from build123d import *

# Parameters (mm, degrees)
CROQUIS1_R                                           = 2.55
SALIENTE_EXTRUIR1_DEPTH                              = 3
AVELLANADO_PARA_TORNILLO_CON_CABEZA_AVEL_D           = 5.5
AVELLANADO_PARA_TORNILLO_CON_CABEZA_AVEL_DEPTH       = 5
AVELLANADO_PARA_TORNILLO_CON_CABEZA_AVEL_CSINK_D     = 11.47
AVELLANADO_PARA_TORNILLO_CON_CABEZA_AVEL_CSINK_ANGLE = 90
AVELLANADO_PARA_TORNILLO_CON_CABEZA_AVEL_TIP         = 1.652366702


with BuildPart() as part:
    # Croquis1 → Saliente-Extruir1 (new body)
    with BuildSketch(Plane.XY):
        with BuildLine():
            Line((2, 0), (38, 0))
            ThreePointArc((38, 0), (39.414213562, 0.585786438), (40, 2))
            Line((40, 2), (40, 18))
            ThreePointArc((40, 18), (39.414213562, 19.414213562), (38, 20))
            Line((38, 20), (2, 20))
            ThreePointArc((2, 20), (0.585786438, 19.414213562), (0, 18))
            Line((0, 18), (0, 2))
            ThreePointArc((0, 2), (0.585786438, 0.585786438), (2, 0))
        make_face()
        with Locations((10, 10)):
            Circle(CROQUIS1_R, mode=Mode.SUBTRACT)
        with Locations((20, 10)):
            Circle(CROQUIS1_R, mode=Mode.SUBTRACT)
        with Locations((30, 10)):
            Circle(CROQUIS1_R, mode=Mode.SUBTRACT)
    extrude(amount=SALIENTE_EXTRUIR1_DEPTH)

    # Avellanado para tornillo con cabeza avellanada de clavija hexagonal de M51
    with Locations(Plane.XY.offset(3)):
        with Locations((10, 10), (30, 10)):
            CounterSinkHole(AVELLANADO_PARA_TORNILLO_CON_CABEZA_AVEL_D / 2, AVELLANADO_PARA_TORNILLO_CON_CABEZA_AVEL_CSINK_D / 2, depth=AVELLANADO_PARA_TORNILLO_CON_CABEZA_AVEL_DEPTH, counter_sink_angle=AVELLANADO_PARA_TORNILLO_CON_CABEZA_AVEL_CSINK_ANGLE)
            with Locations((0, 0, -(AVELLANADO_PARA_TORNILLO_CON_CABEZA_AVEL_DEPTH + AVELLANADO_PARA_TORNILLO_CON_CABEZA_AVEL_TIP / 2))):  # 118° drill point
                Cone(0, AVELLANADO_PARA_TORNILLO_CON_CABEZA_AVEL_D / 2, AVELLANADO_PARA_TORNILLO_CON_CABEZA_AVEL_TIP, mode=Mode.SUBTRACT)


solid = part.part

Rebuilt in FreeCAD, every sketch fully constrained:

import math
import FreeCAD as App
import Part
import Sketcher
from FreeCAD import Vector

doc = App.newDocument("Part")
body = doc.addObject("PartDesign::Body", "Body")

# Sketch on XY plane
sketch1 = doc.addObject("Sketcher::SketchObject", "Sketch")
body.addObject(sketch1)
sketch1.AttachmentSupport = (doc.XY_Plane, [""])
sketch1.MapMode = "FlatFace"
sketch1.addGeometry([
    Part.LineSegment(Vector(2, 0, 0), Vector(38, 0, 0)),  # 0
    Part.ArcOfCircle(Part.Circle(Vector(38, 2, 0), Vector(0, 0, 1), 2), math.radians(-90), math.radians(0)),  # 1
    Part.LineSegment(Vector(40, 2, 0), Vector(40, 18, 0)),  # 2
    Part.ArcOfCircle(Part.Circle(Vector(38, 18, 0), Vector(0, 0, 1), 2), math.radians(0), math.radians(90)),  # 3
    Part.LineSegment(Vector(38, 20, 0), Vector(2, 20, 0)),  # 4
    Part.ArcOfCircle(Part.Circle(Vector(2, 18, 0), Vector(0, 0, 1), 2), math.radians(90), math.radians(180)),  # 5
    Part.LineSegment(Vector(0, 18, 0), Vector(0, 2, 0)),  # 6
    Part.ArcOfCircle(Part.Circle(Vector(2, 2, 0), Vector(0, 0, 1), 2), math.radians(-180), math.radians(-90)),  # 7
    Part.Circle(Vector(10, 10, 0), Vector(0, 0, 1), 2.55),  # 8
    Part.Circle(Vector(20, 10, 0), Vector(0, 0, 1), 2.55),  # 9
    Part.Circle(Vector(30, 10, 0), Vector(0, 0, 1), 2.55),  # 10
], False)
sketch1.addConstraint([
    Sketcher.Constraint("Tangent", 0, 2, 1, 1),
    Sketcher.Constraint("Tangent", 1, 2, 2, 1),
    Sketcher.Constraint("Tangent", 2, 2, 3, 1),
    Sketcher.Constraint("Tangent", 3, 2, 4, 1),
    Sketcher.Constraint("Tangent", 4, 2, 5, 1),
    Sketcher.Constraint("Tangent", 5, 2, 6, 1),
    Sketcher.Constraint("Tangent", 6, 2, 7, 1),
    Sketcher.Constraint("Tangent", 7, 2, 0, 1),
    Sketcher.Constraint("Horizontal", 0),
    Sketcher.Constraint("Vertical", 2),
    Sketcher.Constraint("Horizontal", 4),
    Sketcher.Constraint("Vertical", 6),
    Sketcher.Constraint("Equal", 1, 3),
    Sketcher.Constraint("Equal", 3, 5),
    Sketcher.Constraint("Equal", 5, 7),
    Sketcher.Constraint("Equal", 8, 9),
    Sketcher.Constraint("Equal", 9, 10),
    Sketcher.Constraint("PointOnObject", 0, 2, -1),
    Sketcher.Constraint("PointOnObject", 5, 2, -2),
    Sketcher.Constraint("Horizontal", 8, 3, 9, 3),
    Sketcher.Constraint("Horizontal", 9, 3, 10, 3),
    Sketcher.Constraint("Radius", 1, 2.0),
    Sketcher.Constraint("Diameter", 8, 5.1),
    Sketcher.Constraint("DistanceX", 0, 1, 0, 2, 36.0),
    Sketcher.Constraint("DistanceY", 2, 1, 2, 2, 16.0),
    Sketcher.Constraint("DistanceX", -1, 1, 8, 3, 10.0),
    Sketcher.Constraint("DistanceY", -1, 1, 8, 3, 10.0),
    Sketcher.Constraint("DistanceX", -1, 1, 9, 3, 20.0),
    Sketcher.Constraint("DistanceX", -1, 1, 10, 3, 30.0),
])
pad1 = doc.addObject("PartDesign::Pad", "Pad")
body.addObject(pad1)
pad1.Profile = sketch1
pad1.Length = 3

# Sketch on XY plane
sketch2 = doc.addObject("Sketcher::SketchObject", "Sketch001")
body.addObject(sketch2)
sketch2.AttachmentSupport = (doc.XY_Plane, [""])
sketch2.MapMode = "FlatFace"
sketch2.AttachmentOffset = App.Placement(Vector(0, 0, 3), App.Rotation())
sketch2.addGeometry([
    Part.Circle(Vector(10, 10, 0), Vector(0, 0, 1), 2.75),
    Part.Circle(Vector(30, 10, 0), Vector(0, 0, 1), 2.75),
], False)
sketch2.addConstraint([
    Sketcher.Constraint("Equal", 0, 1),
    Sketcher.Constraint("Horizontal", 0, 3, 1, 3),
    Sketcher.Constraint("Diameter", 0, 5.5),
    Sketcher.Constraint("DistanceX", -1, 1, 0, 3, 10.0),
    Sketcher.Constraint("DistanceY", -1, 1, 0, 3, 10.0),
    Sketcher.Constraint("DistanceX", -1, 1, 1, 3, 30.0),
])
doc.recompute()
hole = doc.addObject("PartDesign::Hole", "Hole")
body.addObject(hole)
hole.Profile = sketch2
hole.ThreadType = "None"
hole.Diameter = 5.5
hole.DepthType = "Dimension"
hole.Depth = 5
hole.DrillPoint = "Angled"
hole.DrillPointAngle = 118
hole.HoleCutType = "Countersink"
hole.HoleCutDiameter = 11.47
hole.HoleCutCountersinkAngle = 90

doc.recompute()
